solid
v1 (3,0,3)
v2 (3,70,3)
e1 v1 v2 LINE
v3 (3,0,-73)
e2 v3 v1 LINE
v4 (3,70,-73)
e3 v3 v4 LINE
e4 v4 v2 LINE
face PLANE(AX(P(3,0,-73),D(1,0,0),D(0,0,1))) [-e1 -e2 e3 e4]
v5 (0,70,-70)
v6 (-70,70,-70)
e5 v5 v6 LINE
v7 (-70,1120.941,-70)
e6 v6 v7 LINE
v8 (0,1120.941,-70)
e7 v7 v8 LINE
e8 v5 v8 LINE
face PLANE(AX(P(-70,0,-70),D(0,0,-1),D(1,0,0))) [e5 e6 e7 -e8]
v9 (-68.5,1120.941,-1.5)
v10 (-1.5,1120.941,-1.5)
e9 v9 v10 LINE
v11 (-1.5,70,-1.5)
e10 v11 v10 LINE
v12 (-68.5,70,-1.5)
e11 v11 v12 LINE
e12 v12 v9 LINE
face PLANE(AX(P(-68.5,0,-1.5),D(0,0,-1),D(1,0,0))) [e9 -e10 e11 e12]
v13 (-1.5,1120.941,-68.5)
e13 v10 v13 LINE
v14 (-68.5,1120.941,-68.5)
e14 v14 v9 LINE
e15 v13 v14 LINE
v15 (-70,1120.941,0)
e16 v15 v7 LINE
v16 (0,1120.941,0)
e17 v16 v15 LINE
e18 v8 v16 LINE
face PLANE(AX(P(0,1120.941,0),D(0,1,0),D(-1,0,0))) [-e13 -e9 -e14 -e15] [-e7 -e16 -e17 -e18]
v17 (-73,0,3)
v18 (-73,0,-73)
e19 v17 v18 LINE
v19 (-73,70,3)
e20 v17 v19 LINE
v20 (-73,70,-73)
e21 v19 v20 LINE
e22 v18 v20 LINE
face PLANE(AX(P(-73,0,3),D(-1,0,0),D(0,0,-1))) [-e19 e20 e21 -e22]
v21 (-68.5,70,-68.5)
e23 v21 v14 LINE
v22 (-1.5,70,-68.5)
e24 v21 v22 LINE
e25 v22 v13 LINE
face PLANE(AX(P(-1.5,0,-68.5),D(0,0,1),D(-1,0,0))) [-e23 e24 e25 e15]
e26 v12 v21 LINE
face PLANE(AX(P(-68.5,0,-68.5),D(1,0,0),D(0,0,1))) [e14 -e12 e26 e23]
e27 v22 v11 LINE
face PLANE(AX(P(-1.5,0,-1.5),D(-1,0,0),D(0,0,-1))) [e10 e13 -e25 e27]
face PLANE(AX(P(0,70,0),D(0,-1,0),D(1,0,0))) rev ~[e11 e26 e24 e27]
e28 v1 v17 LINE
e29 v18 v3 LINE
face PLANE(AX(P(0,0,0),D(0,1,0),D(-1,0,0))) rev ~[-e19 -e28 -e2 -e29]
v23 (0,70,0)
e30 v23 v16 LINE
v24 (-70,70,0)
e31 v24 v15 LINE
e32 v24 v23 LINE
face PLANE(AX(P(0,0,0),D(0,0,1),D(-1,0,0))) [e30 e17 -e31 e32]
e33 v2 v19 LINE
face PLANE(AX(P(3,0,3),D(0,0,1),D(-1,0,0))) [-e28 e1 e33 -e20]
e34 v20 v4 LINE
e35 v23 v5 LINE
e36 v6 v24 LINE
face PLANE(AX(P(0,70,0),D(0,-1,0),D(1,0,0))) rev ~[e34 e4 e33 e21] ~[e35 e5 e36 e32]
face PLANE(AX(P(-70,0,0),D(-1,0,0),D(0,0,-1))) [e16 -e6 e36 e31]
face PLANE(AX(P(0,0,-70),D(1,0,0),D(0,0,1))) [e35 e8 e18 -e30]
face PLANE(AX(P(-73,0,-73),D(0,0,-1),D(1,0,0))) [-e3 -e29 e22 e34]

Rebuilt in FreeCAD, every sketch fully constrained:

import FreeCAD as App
import Part
import Sketcher


def add_polygon(sketch, points):
    """Adds a closed chain of lines whose ends are joined by coincident constraints."""
    first, n = sketch.GeometryCount, len(points)
    for a, b in zip(points, points[1:] + points[:1]):
        sketch.addGeometry(Part.LineSegment(App.Vector(*a, 0), App.Vector(*b, 0)), False)
    for i in range(n):
        sketch.addConstraint(Sketcher.Constraint("Coincident", first + i, 2, first + (i + 1) % n, 1))

doc = App.newDocument("Part")
body = doc.addObject("PartDesign::Body", "Body")

sketch1 = body.newObject("Sketcher::SketchObject", "Sketch")
sketch1.AttachmentSupport = (doc.getObject("XZ_Plane"), [""])
sketch1.MapMode = "FlatFace"
add_polygon(sketch1, [(-70, 0), (0, 0), (0, -70), (-70, -70)])
add_polygon(sketch1, [(-68.5, -68.5), (-1.5, -68.5), (-1.5, -1.5), (-68.5, -1.5)])
sketch1.addConstraint([
    Sketcher.Constraint("Horizontal", 0),
    Sketcher.Constraint("Vertical", 1),
    Sketcher.Constraint("Horizontal", 2),
    Sketcher.Constraint("Vertical", 3),
    Sketcher.Constraint("Horizontal", 4),
    Sketcher.Constraint("Vertical", 5),
    Sketcher.Constraint("Horizontal", 6),
    Sketcher.Constraint("Vertical", 7),
    Sketcher.Constraint("Coincident", 0, 2, -1, 1),
    Sketcher.Constraint("Equal", 2, 1),
    Sketcher.Constraint("Equal", 6, 5),
    Sketcher.Constraint("DistanceX", 0, 1, 0, 2, 70.0),
    Sketcher.Constraint("DistanceX", 4, 2, -1, 1, 1.5),
    Sketcher.Constraint("DistanceY", 5, 2, -1, 1, 1.5),
    Sketcher.Constraint("DistanceY", 1, 2, 4, 2, 1.5),
])
pad1 = body.newObject("PartDesign::Pad", "Pad")
pad1.Profile = sketch1
pad1.Length = 1120.941
pad1.Reversed = True

sketch2 = body.newObject("Sketcher::SketchObject", "Sketch001")
sketch2.AttachmentSupport = (doc.getObject("XZ_Plane"), [""])
sketch2.MapMode = "FlatFace"
add_polygon(sketch2, [(3, -73), (3, 3), (-73, 3), (-73, -73)])
sketch2.addConstraint([
    Sketcher.Constraint("Vertical", 0),
    Sketcher.Constraint("Horizontal", 1),
    Sketcher.Constraint("Vertical", 2),
    Sketcher.Constraint("Horizontal", 3),
    Sketcher.Constraint("Equal", 3, 0),
    Sketcher.Constraint("DistanceX", -1, 1, 0, 2, 3.0),
    Sketcher.Constraint("DistanceY", -1, 1, 0, 2, 3.0),
    Sketcher.Constraint("DistanceX", 1, 2, 1, 1, 76.0),
])
pad2 = body.newObject("PartDesign::Pad", "Pad001")
pad2.Profile = sketch2
pad2.Length = 70
pad2.Reversed = True

doc.recompute()
